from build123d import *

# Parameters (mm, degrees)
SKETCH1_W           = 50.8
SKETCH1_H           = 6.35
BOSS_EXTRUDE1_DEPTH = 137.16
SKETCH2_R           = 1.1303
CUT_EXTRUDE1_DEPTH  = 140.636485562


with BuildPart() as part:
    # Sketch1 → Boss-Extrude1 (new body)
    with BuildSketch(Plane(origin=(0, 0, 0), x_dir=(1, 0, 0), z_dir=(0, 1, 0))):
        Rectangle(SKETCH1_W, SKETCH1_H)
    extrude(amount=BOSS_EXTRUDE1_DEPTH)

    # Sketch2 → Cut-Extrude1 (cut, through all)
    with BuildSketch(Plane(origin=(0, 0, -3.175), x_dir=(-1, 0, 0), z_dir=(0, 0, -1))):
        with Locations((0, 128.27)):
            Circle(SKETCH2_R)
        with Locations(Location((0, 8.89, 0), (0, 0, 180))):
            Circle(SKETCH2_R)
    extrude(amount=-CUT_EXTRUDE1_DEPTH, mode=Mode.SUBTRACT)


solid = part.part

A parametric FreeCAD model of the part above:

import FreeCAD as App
import Part
import Sketcher
from FreeCAD import Vector
Q = App.Units.Quantity


def add_polygon(sketch, points):
    """Adds a closed chain of lines whose ends are joined by coincident constraints."""
    first, n = sketch.GeometryCount, len(points)
    for a, b in zip(points, points[1:] + points[:1]):
        sketch.addGeometry(Part.LineSegment(App.Vector(*a, 0), App.Vector(*b, 0)), False)
    for i in range(n):
        sketch.addConstraint(Sketcher.Constraint("Coincident", first + i, 2, first + (i + 1) % n, 1))

doc = App.newDocument("Part")
params = doc.addObject("Spreadsheet::Sheet", "Params")
for row, (alias, value) in enumerate([
    ("sketch1_width", "2 in"),
    ("sketch1_height", "0.25 in"),
    ("pad1_length", "5.4 in"),
    ("sketch2_diameter", "0.089 in"),
], start=1):
    params.set(f"A{row}", alias)
    params.set(f"B{row}", "=" + value)
    params.setAlias(f"B{row}", alias)

body = doc.addObject("PartDesign::Body", "Body")

# Sketch on XZ plane
sketch1 = body.newObject("Sketcher::SketchObject", "Sketch")
sketch1.AttachmentSupport = (doc.getObject("XZ_Plane"), [""])
sketch1.MapMode = "FlatFace"
add_polygon(sketch1, [(-25, -3), (-25, 3), (25, 3), (25, -3)])  # lines 0-3
sketch1.addConstraint([
    Sketcher.Constraint("Vertical", 0),
    Sketcher.Constraint("Horizontal", 1),
    Sketcher.Constraint("Vertical", 2),
    Sketcher.Constraint("Horizontal", 3),
    Sketcher.Constraint("Symmetric", 0, 2, 2, 2, -1, 1),
    Sketcher.Constraint("DistanceX", 1, 1, 1, 2, Q("2 in")),
    Sketcher.Constraint("DistanceY", 0, 1, 0, 2, Q("0.25 in")),
])
sketch1.setExpression("Constraints[9]", "Params.sketch1_width")
sketch1.setExpression("Constraints[10]", "Params.sketch1_height")
pad1 = body.newObject("PartDesign::Pad", "Pad")
pad1.Profile = sketch1
pad1.setExpression("Length", "Params.pad1_length")
pad1.Reversed = True

# Sketch on XY plane
sketch2 = body.newObject("Sketcher::SketchObject", "Sketch001")
sketch2.AttachmentSupport = (doc.getObject("XY_Plane"), [""])
sketch2.MapMode = "FlatFace"
sketch2.AttachmentOffset = App.Placement(Vector(0, 0, -0.125 * 25.4), App.Rotation())
sketch2.addGeometry([
    Part.Circle(Vector(0, 128.3, 0), Vector(0, 0, 1), 1.1),
    Part.Circle(Vector(0, 8.9, 0), Vector(0, 0, 1), 1.1),
], False)
sketch2.addConstraint([
    Sketcher.Constraint("Equal", 0, 1),
    Sketcher.Constraint("PointOnObject", 0, 3, -2),
    Sketcher.Constraint("PointOnObject", 1, 3, -2),
    Sketcher.Constraint("Diameter", 0, Q("0.089 in")),
    Sketcher.Constraint("DistanceY", 1, 3, 0, 3, Q("4.7 in")),
    Sketcher.Constraint("DistanceY", -1, 1, 0, 3, Q("5.05 in")),
])
sketch2.setExpression("Constraints[3]", "Params.sketch2_diameter")
pocket1 = body.newObject("PartDesign::Pocket", "Pocket")
pocket1.Profile = sketch2
pocket1.Type = "ThroughAll"
pocket1.Reversed = True

doc.recompute()
